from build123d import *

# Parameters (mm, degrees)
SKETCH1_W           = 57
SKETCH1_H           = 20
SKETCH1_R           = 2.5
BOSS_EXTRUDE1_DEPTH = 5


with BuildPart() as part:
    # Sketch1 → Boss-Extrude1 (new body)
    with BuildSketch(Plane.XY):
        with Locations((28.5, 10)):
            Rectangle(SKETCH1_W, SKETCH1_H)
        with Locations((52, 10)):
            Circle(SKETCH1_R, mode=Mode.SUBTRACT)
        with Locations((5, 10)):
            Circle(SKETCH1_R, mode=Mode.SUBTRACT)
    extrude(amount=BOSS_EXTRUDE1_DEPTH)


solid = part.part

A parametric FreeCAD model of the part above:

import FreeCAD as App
import Part
import Sketcher

V = App.Vector
Q = App.Units.Quantity


def add_polygon(sketch, points):
    """Adds a closed chain of lines whose ends are joined by coincident constraints."""
    first, n = sketch.GeometryCount, len(points)
    for a, b in zip(points, points[1:] + points[:1]):
        sketch.addGeometry(Part.LineSegment(App.Vector(*a, 0), App.Vector(*b, 0)), False)
    for i in range(n):
        sketch.addConstraint(Sketcher.Constraint("Coincident", first + i, 2, first + (i + 1) % n, 1))

doc = App.newDocument("Part")
params = doc.addObject("Spreadsheet::Sheet", "Params")
for row, (alias, value) in enumerate([
    ("sketch1_diameter", "5 mm"),
    ("sketch1_width", "57 mm"),
    ("sketch1_height", "20 mm"),
    ("pad1_length", "5 mm"),
], start=1):
    params.set(f"A{row}", alias)
    params.set(f"B{row}", "=" + value)
    params.setAlias(f"B{row}", alias)

body = doc.addObject("PartDesign::Body", "Body")

# Sketch on XY plane
sketch1 = body.newObject("Sketcher::SketchObject", "Sketch")
sketch1.AttachmentSupport = (doc.getObject("XY_Plane"), [""])
sketch1.MapMode = "FlatFace"
add_polygon(sketch1, [(0, 20), (0, 0), (57, 0), (57, 20)])  # lines 0-3
sketch1.addGeometry(Part.Circle(V(5, 10, 0), V(0, 0, 1), 2.5), False)  # 4
sketch1.addGeometry(Part.Circle(V(52, 10, 0), V(0, 0, 1), 2.5), False)  # 5
sketch1.addConstraint([
    Sketcher.Constraint("Vertical", 0),
    Sketcher.Constraint("Horizontal", 1),
    Sketcher.Constraint("Vertical", 2),
    Sketcher.Constraint("Horizontal", 3),
    Sketcher.Constraint("Coincident", 0, 2, -1, 1),
    Sketcher.Constraint("Equal", 4, 5),
    Sketcher.Constraint("Horizontal", 4, 3, 5, 3),
    Sketcher.Constraint("Diameter", 4, Q("5 mm")),
    Sketcher.Constraint("DistanceX", 1, 1, 1, 2, Q("57 mm")),
    Sketcher.Constraint("DistanceY", 0, 2, 0, 1, Q("20 mm")),
    Sketcher.Constraint("DistanceX", -1, 1, 4, 3, Q("5 mm")),
    Sketcher.Constraint("DistanceY", -1, 1, 4, 3, Q("10 mm")),
    Sketcher.Constraint("DistanceX", -1, 1, 5, 3, Q("52 mm")),
])
sketch1.setExpression("Constraints[11]", "Params.sketch1_diameter")
sketch1.setExpression("Constraints[12]", "Params.sketch1_width")
sketch1.setExpression("Constraints[13]", "Params.sketch1_height")
pad1 = body.newObject("PartDesign::Pad", "Pad")
pad1.Profile = sketch1
pad1.setExpression("Length", "Params.pad1_length")

doc.recompute()
